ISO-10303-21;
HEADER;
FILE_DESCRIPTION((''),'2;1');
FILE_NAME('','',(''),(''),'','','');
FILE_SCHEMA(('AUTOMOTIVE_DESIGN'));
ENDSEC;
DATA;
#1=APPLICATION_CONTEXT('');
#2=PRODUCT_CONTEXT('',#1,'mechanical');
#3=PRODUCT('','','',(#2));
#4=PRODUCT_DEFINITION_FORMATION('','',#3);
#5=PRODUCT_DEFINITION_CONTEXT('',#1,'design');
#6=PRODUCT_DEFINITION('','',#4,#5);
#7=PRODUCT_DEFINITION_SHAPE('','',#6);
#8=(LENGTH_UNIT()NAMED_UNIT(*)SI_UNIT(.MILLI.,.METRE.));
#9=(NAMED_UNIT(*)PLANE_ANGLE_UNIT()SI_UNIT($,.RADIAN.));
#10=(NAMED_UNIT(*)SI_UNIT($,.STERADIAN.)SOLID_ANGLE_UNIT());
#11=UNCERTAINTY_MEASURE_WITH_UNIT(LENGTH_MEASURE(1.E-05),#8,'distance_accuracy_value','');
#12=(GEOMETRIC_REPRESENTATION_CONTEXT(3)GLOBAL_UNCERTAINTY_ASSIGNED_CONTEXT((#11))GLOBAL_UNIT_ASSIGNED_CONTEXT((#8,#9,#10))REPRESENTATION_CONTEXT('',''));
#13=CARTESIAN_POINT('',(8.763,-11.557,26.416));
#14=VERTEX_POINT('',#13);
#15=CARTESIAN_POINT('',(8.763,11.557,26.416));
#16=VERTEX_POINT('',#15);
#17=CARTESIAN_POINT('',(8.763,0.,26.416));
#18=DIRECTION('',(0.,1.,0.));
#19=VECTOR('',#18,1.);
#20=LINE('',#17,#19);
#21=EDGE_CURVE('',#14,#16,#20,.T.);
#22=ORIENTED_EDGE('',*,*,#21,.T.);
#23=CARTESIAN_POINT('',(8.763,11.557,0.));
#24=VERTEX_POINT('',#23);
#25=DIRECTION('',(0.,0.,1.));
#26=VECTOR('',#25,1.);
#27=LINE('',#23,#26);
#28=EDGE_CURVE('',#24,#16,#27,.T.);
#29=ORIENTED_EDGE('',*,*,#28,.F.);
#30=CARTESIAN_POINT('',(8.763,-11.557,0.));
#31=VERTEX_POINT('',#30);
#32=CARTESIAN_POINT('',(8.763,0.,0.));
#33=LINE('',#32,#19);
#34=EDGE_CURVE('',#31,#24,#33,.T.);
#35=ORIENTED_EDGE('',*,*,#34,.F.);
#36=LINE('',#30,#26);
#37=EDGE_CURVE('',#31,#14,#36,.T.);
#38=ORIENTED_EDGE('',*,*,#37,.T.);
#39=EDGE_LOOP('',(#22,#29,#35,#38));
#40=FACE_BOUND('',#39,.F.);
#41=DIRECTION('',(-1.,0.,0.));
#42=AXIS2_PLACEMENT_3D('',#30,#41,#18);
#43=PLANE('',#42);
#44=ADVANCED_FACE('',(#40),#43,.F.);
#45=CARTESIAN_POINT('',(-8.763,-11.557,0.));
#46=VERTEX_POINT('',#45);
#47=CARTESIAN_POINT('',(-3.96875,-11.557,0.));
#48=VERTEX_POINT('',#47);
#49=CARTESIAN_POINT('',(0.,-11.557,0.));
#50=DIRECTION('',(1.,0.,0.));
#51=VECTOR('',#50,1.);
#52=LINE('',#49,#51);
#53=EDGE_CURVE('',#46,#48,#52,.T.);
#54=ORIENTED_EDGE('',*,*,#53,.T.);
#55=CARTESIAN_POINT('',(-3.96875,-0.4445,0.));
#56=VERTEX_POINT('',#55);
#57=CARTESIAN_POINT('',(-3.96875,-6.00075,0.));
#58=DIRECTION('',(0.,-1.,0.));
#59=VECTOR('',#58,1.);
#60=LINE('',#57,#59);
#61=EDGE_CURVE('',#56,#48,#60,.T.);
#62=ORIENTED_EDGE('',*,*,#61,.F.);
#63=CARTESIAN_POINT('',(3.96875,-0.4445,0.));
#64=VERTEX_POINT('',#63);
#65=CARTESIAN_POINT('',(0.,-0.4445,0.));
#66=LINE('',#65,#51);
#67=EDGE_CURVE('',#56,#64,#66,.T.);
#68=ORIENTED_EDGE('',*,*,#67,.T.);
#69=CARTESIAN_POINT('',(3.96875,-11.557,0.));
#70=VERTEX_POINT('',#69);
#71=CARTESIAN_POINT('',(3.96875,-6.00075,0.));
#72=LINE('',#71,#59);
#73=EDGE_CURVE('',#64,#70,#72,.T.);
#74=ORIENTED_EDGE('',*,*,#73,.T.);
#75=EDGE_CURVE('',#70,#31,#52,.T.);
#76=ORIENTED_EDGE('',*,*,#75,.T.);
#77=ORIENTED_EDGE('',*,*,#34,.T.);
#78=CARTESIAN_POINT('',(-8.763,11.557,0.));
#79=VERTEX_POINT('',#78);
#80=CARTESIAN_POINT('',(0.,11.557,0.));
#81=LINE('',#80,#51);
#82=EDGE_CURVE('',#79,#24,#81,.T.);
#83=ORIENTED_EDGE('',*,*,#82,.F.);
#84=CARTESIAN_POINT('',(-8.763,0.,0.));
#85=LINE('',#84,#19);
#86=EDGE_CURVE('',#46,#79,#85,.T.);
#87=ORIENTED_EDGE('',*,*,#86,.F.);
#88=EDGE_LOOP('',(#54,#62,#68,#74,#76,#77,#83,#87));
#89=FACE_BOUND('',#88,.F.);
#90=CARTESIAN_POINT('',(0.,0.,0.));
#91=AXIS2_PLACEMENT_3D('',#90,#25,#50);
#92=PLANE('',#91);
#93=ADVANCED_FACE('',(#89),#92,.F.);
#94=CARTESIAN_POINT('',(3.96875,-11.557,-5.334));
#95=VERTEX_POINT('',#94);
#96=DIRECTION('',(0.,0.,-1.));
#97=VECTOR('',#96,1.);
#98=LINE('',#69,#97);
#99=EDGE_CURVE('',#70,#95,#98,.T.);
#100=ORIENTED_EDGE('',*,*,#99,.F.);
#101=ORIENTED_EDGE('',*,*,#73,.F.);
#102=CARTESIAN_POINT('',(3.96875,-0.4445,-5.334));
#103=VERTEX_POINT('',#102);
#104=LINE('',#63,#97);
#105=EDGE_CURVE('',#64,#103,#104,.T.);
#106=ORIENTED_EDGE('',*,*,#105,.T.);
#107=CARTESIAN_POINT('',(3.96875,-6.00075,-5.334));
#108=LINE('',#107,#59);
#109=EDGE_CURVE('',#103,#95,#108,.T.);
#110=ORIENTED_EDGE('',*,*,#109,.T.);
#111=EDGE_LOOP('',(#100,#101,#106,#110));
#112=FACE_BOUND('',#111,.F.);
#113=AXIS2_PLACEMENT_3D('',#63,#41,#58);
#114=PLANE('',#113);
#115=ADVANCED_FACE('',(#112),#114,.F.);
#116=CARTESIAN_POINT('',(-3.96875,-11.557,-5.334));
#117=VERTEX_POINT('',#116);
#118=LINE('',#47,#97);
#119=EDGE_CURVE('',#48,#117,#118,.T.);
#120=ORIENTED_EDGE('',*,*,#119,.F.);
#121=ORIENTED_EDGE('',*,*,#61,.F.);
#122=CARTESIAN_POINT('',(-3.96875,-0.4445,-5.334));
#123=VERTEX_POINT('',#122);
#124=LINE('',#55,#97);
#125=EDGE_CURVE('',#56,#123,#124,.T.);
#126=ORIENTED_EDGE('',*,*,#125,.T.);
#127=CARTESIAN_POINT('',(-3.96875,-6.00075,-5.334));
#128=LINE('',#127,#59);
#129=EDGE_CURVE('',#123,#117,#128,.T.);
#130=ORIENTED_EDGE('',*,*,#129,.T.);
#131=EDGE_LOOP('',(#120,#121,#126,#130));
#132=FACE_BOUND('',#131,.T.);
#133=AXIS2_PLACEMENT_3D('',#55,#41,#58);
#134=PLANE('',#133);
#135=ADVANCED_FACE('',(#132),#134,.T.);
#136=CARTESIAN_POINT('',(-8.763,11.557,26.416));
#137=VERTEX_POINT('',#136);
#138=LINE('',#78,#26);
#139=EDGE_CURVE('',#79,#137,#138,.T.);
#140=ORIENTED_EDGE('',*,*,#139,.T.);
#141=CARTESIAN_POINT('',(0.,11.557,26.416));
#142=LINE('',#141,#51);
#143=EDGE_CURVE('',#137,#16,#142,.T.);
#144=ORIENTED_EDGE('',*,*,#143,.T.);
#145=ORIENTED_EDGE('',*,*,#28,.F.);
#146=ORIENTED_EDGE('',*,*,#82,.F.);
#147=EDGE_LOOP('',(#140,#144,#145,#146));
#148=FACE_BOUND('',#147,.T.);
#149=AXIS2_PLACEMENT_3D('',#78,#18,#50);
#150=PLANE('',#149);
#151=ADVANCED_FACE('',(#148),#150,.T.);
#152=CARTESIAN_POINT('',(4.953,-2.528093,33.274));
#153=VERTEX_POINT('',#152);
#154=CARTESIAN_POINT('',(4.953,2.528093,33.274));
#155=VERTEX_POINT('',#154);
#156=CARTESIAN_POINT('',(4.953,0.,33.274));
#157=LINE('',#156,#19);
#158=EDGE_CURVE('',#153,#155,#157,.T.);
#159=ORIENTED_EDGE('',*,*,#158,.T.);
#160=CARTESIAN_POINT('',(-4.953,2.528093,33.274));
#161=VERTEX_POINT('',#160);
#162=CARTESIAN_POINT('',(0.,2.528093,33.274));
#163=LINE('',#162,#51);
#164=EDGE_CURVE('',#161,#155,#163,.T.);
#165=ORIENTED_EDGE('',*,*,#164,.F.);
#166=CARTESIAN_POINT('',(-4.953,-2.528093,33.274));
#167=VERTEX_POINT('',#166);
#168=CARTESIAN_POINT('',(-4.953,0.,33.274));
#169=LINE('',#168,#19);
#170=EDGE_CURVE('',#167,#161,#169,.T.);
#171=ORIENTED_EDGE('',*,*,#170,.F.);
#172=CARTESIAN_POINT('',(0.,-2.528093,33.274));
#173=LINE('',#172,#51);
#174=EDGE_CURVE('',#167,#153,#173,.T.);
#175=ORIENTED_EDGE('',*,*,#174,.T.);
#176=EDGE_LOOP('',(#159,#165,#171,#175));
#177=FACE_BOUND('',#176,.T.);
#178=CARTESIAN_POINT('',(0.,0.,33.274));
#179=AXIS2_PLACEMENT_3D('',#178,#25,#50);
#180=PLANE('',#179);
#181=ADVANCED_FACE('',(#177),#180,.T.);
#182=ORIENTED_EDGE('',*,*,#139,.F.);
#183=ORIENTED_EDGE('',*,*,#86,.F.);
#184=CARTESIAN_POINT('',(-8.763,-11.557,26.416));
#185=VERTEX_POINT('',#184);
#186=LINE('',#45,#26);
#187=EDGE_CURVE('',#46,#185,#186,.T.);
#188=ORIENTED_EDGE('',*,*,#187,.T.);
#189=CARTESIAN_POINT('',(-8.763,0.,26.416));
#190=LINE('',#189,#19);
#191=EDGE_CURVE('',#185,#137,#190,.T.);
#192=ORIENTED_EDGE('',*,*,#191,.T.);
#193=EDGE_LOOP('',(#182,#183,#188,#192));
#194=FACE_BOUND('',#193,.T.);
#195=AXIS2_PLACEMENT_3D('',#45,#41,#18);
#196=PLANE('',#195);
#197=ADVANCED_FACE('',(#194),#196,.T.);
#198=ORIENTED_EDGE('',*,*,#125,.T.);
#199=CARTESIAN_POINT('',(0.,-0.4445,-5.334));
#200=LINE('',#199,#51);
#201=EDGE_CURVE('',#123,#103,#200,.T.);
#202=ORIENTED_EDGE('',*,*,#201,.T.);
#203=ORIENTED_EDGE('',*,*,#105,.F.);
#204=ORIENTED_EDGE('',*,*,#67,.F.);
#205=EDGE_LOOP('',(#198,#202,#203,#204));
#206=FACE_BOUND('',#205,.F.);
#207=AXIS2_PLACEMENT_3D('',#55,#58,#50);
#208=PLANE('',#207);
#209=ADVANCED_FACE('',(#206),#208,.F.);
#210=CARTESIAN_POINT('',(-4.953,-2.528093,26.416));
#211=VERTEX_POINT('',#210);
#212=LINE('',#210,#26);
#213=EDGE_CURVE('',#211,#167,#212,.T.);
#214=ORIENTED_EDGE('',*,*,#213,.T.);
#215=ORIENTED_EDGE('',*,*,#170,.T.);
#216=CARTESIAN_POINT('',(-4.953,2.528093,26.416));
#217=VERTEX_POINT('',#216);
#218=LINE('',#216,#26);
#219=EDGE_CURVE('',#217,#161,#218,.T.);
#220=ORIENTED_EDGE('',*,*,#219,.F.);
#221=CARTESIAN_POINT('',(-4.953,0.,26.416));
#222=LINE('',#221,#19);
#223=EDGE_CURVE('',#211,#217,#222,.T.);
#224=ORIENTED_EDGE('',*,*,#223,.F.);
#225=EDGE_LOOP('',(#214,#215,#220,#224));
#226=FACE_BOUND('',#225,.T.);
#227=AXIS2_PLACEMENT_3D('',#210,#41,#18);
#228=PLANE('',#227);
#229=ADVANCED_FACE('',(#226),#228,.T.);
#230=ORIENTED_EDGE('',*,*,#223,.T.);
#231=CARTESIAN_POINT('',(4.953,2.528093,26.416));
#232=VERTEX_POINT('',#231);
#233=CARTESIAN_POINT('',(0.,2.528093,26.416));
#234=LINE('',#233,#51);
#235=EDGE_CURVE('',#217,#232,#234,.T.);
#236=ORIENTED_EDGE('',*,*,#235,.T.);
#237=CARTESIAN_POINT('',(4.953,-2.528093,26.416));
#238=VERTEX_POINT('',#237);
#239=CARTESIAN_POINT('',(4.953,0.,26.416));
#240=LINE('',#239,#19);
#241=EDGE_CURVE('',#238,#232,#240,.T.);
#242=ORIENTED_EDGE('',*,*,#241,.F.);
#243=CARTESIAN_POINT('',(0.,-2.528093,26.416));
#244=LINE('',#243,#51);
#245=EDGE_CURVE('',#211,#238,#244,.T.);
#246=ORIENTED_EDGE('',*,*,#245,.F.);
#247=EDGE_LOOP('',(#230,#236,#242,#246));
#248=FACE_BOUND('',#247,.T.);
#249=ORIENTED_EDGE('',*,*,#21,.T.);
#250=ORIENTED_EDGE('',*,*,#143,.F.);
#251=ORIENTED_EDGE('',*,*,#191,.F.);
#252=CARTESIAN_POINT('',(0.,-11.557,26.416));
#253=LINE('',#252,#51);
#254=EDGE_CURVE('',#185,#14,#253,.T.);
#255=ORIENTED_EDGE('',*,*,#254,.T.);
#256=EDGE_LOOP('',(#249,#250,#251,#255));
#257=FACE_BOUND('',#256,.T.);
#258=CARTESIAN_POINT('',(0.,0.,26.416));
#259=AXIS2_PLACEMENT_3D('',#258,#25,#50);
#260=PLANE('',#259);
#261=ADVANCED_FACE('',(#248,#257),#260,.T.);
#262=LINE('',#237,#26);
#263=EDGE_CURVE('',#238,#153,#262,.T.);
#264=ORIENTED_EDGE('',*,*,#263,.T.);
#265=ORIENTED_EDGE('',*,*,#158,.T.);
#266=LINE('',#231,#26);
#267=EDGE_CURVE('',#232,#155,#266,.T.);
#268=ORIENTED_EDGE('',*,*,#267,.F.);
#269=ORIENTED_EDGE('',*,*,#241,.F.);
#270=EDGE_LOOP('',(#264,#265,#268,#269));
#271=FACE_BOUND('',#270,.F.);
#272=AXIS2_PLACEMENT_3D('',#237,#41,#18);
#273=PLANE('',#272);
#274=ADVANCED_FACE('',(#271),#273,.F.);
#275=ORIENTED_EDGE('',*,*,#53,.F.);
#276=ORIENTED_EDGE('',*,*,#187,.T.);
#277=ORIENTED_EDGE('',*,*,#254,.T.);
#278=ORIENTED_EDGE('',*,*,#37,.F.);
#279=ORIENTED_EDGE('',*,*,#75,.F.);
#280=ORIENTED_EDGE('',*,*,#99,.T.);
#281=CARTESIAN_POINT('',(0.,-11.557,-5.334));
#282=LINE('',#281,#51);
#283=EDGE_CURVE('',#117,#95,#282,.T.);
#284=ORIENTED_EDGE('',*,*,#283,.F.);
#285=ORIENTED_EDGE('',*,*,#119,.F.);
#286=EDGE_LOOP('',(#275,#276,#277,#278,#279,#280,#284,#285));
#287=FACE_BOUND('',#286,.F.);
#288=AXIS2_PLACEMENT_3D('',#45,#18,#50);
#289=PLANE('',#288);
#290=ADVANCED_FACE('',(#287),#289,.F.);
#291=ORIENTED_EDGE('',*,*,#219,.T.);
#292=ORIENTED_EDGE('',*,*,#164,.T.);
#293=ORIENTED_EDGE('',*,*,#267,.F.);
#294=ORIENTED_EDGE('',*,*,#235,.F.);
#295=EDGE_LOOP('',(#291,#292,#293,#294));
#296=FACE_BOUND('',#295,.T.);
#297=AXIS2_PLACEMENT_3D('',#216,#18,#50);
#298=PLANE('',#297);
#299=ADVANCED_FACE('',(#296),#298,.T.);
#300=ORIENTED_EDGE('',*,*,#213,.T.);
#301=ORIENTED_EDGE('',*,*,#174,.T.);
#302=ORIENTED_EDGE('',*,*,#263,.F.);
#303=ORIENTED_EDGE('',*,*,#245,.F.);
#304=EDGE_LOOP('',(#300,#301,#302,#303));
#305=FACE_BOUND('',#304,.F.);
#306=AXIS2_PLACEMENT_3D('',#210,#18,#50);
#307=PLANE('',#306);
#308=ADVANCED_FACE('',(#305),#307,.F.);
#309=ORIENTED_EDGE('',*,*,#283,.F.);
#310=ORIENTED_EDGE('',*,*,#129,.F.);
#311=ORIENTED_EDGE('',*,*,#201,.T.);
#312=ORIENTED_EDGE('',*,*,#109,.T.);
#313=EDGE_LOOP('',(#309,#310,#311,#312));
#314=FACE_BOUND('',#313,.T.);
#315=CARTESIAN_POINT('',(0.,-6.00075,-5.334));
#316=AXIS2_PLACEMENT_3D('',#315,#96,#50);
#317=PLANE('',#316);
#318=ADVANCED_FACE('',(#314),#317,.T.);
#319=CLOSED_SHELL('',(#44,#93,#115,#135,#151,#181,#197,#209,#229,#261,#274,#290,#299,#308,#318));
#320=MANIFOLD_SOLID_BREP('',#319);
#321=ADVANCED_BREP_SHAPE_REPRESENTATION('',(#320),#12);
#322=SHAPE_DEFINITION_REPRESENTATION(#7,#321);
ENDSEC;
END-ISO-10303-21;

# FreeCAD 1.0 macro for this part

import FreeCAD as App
import Part
import Sketcher

V = App.Vector
Q = App.Units.Quantity


def add_polygon(sketch, points):
    """Adds a closed chain of lines whose ends are joined by coincident constraints."""
    first, n = sketch.GeometryCount, len(points)
    for a, b in zip(points, points[1:] + points[:1]):
        sketch.addGeometry(Part.LineSegment(App.Vector(*a, 0), App.Vector(*b, 0)), False)
    for i in range(n):
        sketch.addConstraint(Sketcher.Constraint("Coincident", first + i, 2, first + (i + 1) % n, 1))

doc = App.newDocument("Part")
params = doc.addObject("Spreadsheet::Sheet", "Params")
for row, (alias, value) in enumerate([
    ("sketch1_width", "0.69 in"),
    ("sketch1_height", "0.91 in"),
    ("pad1_length", "1.04 in"),
    ("sketch2_width", "0.39 in"),
    ("pad2_length", "0.27 in"),
    ("sketch3_width", "0.3125 in"),
    ("sketch3_height", "0.4375 in"),
    ("pad3_length", "0.21 in"),
], start=1):
    params.set(f"A{row}", alias)
    params.set(f"B{row}", "=" + value)
    params.setAlias(f"B{row}", alias)

body = doc.addObject("PartDesign::Body", "Body")

# Sketch on XY plane
sketch1 = body.newObject("Sketcher::SketchObject", "Sketch")
sketch1.AttachmentSupport = (doc.getObject("XY_Plane"), [""])
sketch1.MapMode = "FlatFace"
add_polygon(sketch1, [(-9, 12), (-9, -12), (9, -12), (9, 12)])  # lines 0-3
sketch1.addConstraint(Sketcher.Constraint("Vertical", 0))
sketch1.addConstraint(Sketcher.Constraint("Horizontal", 1))
sketch1.addConstraint(Sketcher.Constraint("Vertical", 2))
sketch1.addConstraint(Sketcher.Constraint("Horizontal", 3))
sketch1.addConstraint(Sketcher.Constraint("Symmetric", 0, 2, 2, 2, -1, 1))
sketch1.addConstraint(Sketcher.Constraint("DistanceX", 1, 1, 1, 2, Q("0.69 in")))
sketch1.addConstraint(Sketcher.Constraint("DistanceY", 0, 2, 0, 1, Q("0.91 in")))
sketch1.setExpression("Constraints[9]", "Params.sketch1_width")
sketch1.setExpression("Constraints[10]", "Params.sketch1_height")
pad1 = body.newObject("PartDesign::Pad", "Pad")
pad1.Profile = sketch1
pad1.setExpression("Length", "Params.pad1_length")

# Sketch on XY plane
sketch2 = body.newObject("Sketcher::SketchObject", "Sketch001")
sketch2.AttachmentSupport = (doc.getObject("XY_Plane"), [""])
sketch2.MapMode = "FlatFace"
sketch2.AttachmentOffset = App.Placement(V(0, 0, 1.04 * 25.4), App.Rotation())
add_polygon(sketch2, [(-5, 3), (-5, -3), (5, -3), (5, 3)])  # lines 0-3
sketch2.addConstraint(Sketcher.Constraint("Vertical", 0))
sketch2.addConstraint(Sketcher.Constraint("Horizontal", 1))
sketch2.addConstraint(Sketcher.Constraint("Vertical", 2))
sketch2.addConstraint(Sketcher.Constraint("Horizontal", 3))
sketch2.addConstraint(Sketcher.Constraint("Symmetric", 0, 2, 2, 2, -1, 1))
sketch2.addConstraint(Sketcher.Constraint("DistanceX", 1, 1, 1, 2, Q("0.39 in")))
sketch2.addConstraint(Sketcher.Constraint("DistanceY", 0, 2, 0, 1, 5.056186))
sketch2.setExpression("Constraints[9]", "Params.sketch2_width")
pad2 = body.newObject("PartDesign::Pad", "Pad001")
pad2.Profile = sketch2
pad2.setExpression("Length", "Params.pad2_length")

# Sketch on XY plane
sketch3 = body.newObject("Sketcher::SketchObject", "Sketch002")
sketch3.AttachmentSupport = (doc.getObject("XY_Plane"), [""])
sketch3.MapMode = "FlatFace"
add_polygon(sketch3, [(-4, -12), (-4, 0), (4, 0), (4, -12)])  # lines 0-3
sketch3.addConstraint(Sketcher.Constraint("Vertical", 0))
sketch3.addConstraint(Sketcher.Constraint("Horizontal", 1))
sketch3.addConstraint(Sketcher.Constraint("Vertical", 2))
sketch3.addConstraint(Sketcher.Constraint("Horizontal", 3))
sketch3.addConstraint(Sketcher.Constraint("DistanceX", 1, 1, 1, 2, Q("0.3125 in")))
sketch3.addConstraint(Sketcher.Constraint("DistanceY", 0, 1, 0, 2, Q("0.4375 in")))
sketch3.addConstraint(Sketcher.Constraint("DistanceX", 0, 2, -1, 1, Q("0.15625 in")))
sketch3.addConstraint(Sketcher.Constraint("DistanceY", 2, 2, -1, 1, Q("0.455 in")))
sketch3.setExpression("Constraints[8]", "Params.sketch3_width")
sketch3.setExpression("Constraints[9]", "Params.sketch3_height")
pad3 = body.newObject("PartDesign::Pad", "Pad002")
pad3.Profile = sketch3
pad3.setExpression("Length", "Params.pad3_length")
pad3.Reversed = True

doc.recompute()
